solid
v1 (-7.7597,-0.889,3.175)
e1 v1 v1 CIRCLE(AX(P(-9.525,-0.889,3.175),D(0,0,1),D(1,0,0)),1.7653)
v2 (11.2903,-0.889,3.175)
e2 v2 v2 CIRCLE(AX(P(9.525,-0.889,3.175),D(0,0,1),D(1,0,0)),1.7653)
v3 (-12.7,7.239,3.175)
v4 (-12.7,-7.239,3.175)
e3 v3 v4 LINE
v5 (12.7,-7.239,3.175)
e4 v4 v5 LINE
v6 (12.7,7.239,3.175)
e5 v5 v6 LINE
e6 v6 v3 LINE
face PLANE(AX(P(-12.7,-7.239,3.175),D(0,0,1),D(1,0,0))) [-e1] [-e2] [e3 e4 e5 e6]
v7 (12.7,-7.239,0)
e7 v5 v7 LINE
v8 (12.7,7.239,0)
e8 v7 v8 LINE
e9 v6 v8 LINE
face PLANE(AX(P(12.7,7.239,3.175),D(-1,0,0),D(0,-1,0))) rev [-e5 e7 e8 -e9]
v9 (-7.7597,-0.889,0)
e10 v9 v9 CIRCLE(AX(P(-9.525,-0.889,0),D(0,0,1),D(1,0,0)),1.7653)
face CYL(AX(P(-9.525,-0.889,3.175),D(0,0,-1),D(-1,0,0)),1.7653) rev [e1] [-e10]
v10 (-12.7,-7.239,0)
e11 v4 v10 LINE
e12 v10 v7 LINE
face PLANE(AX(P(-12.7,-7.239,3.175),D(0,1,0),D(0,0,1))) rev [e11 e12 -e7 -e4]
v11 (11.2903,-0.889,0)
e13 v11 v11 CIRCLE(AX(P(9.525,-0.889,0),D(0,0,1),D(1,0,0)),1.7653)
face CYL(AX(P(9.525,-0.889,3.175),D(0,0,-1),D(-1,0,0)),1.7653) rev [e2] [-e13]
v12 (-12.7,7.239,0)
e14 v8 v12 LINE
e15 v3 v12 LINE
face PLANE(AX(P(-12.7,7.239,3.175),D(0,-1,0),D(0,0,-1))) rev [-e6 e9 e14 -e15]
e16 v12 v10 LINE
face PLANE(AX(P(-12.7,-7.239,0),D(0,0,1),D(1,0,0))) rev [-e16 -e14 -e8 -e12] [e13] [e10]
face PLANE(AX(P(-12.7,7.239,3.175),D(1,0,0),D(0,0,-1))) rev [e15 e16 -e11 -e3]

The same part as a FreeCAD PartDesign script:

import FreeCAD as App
import Part
import Sketcher
from FreeCAD import Vector
Q = App.Units.Quantity


def add_polygon(sketch, points):
    """Adds a closed chain of lines whose ends are joined by coincident constraints."""
    first, n = sketch.GeometryCount, len(points)
    for a, b in zip(points, points[1:] + points[:1]):
        sketch.addGeometry(Part.LineSegment(App.Vector(*a, 0), App.Vector(*b, 0)), False)
    for i in range(n):
        sketch.addConstraint(Sketcher.Constraint("Coincident", first + i, 2, first + (i + 1) % n, 1))

doc = App.newDocument("Part")
params = doc.addObject("Spreadsheet::Sheet", "Params")
for row, (alias, value) in enumerate([
    ("sketch1_width", "1 in"),
    ("sketch1_diameter", "0.139 in"),
    ("sketch1_height", "0.57 in"),
    ("pad1_length", "0.125 in"),
], start=1):
    params.set(f"A{row}", alias)
    params.set(f"B{row}", "=" + value)
    params.setAlias(f"B{row}", alias)

body = doc.addObject("PartDesign::Body", "Body")

# Sketch on XY plane
sketch1 = body.newObject("Sketcher::SketchObject", "Sketch")
sketch1.AttachmentSupport = (doc.getObject("XY_Plane"), [""])
sketch1.MapMode = "FlatFace"
add_polygon(sketch1, [(-12.7, 7.239), (-12.7, -7.239), (12.7, -7.239), (12.7, 7.239)])  # lines 0-3
sketch1.addGeometry(Part.Circle(Vector(-9.525, -0.889, 0), Vector(0, 0, 1), 1.7653), False)  # 4
sketch1.addGeometry(Part.Circle(Vector(9.525, -0.889, 0), Vector(0, 0, 1), 1.7653), False)  # 5
sketch1.addConstraint([
    Sketcher.Constraint("Vertical", 0),
    Sketcher.Constraint("Horizontal", 1),
    Sketcher.Constraint("Vertical", 2),
    Sketcher.Constraint("Horizontal", 3),
    Sketcher.Constraint("Equal", 4, 5),
    Sketcher.Constraint("Symmetric", 0, 2, 2, 2, -1, 1),
    Sketcher.Constraint("Symmetric", 4, 3, 5, 3, -2),
    Sketcher.Constraint("DistanceX", 1, 1, 1, 2, Q("1 in")),
    Sketcher.Constraint("Diameter", 4, Q("0.139 in")),
    Sketcher.Constraint("DistanceY", 0, 2, 0, 1, Q("0.57 in")),
    Sketcher.Constraint("DistanceX", 4, 3, 5, 3, Q("0.75 in")),
    Sketcher.Constraint("DistanceY", 0, 2, 4, 3, Q("0.25 in")),
])
sketch1.setExpression("Constraints[11]", "Params.sketch1_width")
sketch1.setExpression("Constraints[12]", "Params.sketch1_diameter")
sketch1.setExpression("Constraints[13]", "Params.sketch1_height")
pad1 = body.newObject("PartDesign::Pad", "Pad")
pad1.Profile = sketch1
pad1.setExpression("Length", "Params.pad1_length")

doc.recompute()
